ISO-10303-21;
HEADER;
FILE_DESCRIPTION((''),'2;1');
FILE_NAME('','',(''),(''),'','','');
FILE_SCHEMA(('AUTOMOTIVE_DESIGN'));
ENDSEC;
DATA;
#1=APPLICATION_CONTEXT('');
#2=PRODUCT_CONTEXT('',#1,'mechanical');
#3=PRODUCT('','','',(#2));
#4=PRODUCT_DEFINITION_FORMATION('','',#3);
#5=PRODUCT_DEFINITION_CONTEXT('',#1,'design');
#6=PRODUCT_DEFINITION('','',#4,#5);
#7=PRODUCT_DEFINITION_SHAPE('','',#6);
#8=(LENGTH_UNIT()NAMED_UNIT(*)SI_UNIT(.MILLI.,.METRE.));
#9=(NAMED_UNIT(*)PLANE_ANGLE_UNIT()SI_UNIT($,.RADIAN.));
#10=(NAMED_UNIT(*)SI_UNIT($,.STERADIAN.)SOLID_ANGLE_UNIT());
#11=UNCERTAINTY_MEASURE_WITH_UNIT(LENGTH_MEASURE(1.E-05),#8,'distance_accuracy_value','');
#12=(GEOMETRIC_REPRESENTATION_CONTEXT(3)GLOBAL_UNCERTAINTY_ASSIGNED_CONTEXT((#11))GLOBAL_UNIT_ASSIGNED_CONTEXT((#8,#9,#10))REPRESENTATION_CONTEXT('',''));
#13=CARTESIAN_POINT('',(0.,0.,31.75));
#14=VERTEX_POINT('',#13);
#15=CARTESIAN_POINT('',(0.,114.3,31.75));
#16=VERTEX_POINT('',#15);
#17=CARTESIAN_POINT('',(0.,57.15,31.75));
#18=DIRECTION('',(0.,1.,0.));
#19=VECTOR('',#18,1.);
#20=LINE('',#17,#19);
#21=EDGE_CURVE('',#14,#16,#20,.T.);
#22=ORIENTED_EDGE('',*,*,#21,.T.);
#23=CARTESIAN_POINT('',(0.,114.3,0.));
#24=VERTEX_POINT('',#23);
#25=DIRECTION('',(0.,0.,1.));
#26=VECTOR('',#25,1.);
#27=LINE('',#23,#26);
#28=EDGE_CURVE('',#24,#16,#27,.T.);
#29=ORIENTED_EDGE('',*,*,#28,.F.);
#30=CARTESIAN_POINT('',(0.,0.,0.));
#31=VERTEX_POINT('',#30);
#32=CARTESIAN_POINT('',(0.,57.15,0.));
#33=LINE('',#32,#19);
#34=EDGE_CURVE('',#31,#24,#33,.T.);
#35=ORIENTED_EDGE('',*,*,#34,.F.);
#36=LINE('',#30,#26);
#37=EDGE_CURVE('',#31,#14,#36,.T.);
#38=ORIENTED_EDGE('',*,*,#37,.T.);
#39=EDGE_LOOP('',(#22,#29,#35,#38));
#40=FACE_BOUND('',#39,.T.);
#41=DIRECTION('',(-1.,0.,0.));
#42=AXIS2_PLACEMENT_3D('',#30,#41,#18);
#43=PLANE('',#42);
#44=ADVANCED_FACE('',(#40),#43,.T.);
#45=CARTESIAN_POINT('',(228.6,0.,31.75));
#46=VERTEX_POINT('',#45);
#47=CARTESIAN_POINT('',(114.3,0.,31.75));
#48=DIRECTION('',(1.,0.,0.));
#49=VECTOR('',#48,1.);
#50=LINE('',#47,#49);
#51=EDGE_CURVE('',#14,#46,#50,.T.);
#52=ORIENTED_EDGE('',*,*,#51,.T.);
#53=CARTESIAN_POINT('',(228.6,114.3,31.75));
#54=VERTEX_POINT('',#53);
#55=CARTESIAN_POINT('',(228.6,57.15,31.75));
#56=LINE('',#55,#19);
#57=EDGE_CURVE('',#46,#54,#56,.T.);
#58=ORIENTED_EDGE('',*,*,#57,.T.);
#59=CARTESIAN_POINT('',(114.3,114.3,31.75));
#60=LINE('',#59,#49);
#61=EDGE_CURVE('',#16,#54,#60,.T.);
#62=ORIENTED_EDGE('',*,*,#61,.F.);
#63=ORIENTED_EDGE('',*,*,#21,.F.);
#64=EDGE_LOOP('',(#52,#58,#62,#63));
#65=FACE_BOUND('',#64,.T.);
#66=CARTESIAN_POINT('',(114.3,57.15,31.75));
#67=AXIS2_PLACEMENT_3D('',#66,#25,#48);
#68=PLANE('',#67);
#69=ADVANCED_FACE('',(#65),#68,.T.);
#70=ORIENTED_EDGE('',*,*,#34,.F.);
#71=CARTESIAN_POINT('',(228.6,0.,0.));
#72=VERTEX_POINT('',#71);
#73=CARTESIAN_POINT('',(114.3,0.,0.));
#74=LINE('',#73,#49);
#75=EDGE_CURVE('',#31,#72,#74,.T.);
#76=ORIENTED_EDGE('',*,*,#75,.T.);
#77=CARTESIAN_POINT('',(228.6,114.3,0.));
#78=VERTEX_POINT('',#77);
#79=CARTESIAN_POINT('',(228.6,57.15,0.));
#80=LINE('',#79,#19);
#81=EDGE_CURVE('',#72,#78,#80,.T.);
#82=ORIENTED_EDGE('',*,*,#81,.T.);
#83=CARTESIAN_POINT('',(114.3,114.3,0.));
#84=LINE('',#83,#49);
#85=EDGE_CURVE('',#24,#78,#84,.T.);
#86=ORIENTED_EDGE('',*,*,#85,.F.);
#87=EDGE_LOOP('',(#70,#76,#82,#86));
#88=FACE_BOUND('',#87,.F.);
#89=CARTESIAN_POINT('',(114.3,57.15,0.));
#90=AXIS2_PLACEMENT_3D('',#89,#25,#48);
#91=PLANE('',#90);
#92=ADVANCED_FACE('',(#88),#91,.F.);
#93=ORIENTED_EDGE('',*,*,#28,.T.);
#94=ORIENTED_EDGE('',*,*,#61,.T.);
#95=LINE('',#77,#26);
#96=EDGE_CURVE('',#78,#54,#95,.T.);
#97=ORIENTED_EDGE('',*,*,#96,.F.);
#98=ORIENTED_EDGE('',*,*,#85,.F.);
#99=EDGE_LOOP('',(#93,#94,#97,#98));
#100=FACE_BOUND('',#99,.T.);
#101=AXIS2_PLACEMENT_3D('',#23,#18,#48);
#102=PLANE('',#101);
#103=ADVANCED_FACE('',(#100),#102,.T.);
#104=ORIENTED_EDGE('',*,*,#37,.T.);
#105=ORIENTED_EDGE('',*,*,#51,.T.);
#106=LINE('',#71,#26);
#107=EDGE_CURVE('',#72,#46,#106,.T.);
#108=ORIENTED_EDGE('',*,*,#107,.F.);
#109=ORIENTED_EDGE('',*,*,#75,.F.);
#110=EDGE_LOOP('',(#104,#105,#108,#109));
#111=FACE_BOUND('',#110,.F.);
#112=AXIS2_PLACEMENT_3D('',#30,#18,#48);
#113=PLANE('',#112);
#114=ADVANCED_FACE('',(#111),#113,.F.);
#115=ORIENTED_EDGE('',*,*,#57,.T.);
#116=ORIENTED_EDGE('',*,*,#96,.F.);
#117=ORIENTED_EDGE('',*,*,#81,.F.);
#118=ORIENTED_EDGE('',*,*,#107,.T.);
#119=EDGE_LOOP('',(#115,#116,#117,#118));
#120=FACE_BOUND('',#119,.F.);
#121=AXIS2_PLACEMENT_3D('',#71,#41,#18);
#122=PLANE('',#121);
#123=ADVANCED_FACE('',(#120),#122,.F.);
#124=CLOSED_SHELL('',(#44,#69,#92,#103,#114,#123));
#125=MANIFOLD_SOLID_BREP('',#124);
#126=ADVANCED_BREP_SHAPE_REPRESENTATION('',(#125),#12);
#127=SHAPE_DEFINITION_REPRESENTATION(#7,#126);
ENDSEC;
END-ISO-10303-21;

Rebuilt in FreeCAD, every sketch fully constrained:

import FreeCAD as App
import Part
import Sketcher
Q = App.Units.Quantity

doc = App.newDocument("Part")
params = doc.addObject("Spreadsheet::Sheet", "Params")
for row, (alias, value) in enumerate([
    ("sketch1_width", "9 in"),
    ("sketch1_height", "4.5 in"),
    ("pad1_length", "1.25 in"),
], start=1):
    params.set(f"A{row}", alias)
    params.set(f"B{row}", "=" + value)
    params.setAlias(f"B{row}", alias)

body = doc.addObject("PartDesign::Body", "Body")

sketch1 = body.newObject("Sketcher::SketchObject", "Sketch")
sketch1.AttachmentSupport = (doc.getObject("XY_Plane"), [""])
sketch1.MapMode = "FlatFace"
sketch1.addGeometry([
    Part.LineSegment(App.Vector(0, 114, 0), App.Vector(0, 0, 0)),
    Part.LineSegment(App.Vector(0, 0, 0), App.Vector(229, 0, 0)),
    Part.LineSegment(App.Vector(229, 0, 0), App.Vector(229, 114, 0)),
    Part.LineSegment(App.Vector(229, 114, 0), App.Vector(0, 114, 0)),
], False)
sketch1.addConstraint([
    Sketcher.Constraint("Coincident", 0, 2, 1, 1),
    Sketcher.Constraint("Coincident", 1, 2, 2, 1),
    Sketcher.Constraint("Coincident", 2, 2, 3, 1),
    Sketcher.Constraint("Coincident", 3, 2, 0, 1),
    Sketcher.Constraint("Vertical", 0),
    Sketcher.Constraint("Horizontal", 1),
    Sketcher.Constraint("Vertical", 2),
    Sketcher.Constraint("Horizontal", 3),
    Sketcher.Constraint("Coincident", 0, 2, -1, 1),
    Sketcher.Constraint("DistanceX", 1, 1, 1, 2, Q("9 in")),
    Sketcher.Constraint("DistanceY", 0, 2, 0, 1, Q("4.5 in")),
])
sketch1.setExpression("Constraints[9]", "Params.sketch1_width")
sketch1.setExpression("Constraints[10]", "Params.sketch1_height")
pad1 = body.newObject("PartDesign::Pad", "Pad")
pad1.Profile = sketch1
pad1.setExpression("Length", "Params.pad1_length")

doc.recompute()
